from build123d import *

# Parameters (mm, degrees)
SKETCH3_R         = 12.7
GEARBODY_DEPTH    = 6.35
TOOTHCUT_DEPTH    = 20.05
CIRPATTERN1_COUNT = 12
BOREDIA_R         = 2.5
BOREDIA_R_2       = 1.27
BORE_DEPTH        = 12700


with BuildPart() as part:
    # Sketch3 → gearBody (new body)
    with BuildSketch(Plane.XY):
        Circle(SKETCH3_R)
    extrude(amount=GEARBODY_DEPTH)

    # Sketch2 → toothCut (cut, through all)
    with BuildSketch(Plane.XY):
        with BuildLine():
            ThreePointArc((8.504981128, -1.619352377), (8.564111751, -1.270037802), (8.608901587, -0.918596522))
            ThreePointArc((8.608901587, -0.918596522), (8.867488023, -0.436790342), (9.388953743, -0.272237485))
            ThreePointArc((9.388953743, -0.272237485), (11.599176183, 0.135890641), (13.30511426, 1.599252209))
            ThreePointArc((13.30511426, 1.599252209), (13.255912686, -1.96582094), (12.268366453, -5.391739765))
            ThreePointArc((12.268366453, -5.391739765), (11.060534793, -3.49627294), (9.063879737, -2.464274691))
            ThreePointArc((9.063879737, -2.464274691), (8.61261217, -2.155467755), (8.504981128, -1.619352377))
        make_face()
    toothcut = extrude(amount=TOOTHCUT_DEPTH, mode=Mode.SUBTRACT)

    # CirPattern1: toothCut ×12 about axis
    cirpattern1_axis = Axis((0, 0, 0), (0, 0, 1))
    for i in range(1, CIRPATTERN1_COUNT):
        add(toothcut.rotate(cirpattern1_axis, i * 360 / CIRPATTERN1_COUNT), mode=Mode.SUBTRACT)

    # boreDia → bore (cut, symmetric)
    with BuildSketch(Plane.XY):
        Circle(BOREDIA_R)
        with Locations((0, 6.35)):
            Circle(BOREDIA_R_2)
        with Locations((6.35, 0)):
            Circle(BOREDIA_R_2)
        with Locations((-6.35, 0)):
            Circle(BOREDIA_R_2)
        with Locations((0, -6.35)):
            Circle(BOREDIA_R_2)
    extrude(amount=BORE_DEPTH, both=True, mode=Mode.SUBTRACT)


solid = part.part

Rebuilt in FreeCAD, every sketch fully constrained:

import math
import FreeCAD as App
import Part
import Sketcher
from FreeCAD import Vector
Q = App.Units.Quantity

doc = App.newDocument("Part")
params = doc.addObject("Spreadsheet::Sheet", "Params")
for row, (alias, value) in enumerate([
    ("sketch1_diameter", "1 in"),
    ("pad1_length", "0.25 in"),
    ("sketch3_diameter", "0.1 in"),
    ("pocket2_length", "1000 in"),
], start=1):
    params.set(f"A{row}", alias)
    params.set(f"B{row}", "=" + value)
    params.setAlias(f"B{row}", alias)

body = doc.addObject("PartDesign::Body", "Body")

# Sketch on XY plane
sketch1 = doc.addObject("Sketcher::SketchObject", "Sketch")
body.addObject(sketch1)
sketch1.AttachmentSupport = (doc.XY_Plane, [""])
sketch1.MapMode = "FlatFace"
sketch1.addGeometry(Part.Circle(Vector(0, 0, 0), Vector(0, 0, 1), 13), False)
sketch1.addConstraint([
    Sketcher.Constraint("Coincident", 0, 3, -1, 1),
    Sketcher.Constraint("Diameter", 0, Q("1 in")),
])
sketch1.setExpression("Constraints[1]", "Params.sketch1_diameter")
pad1 = doc.addObject("PartDesign::Pad", "Pad")
body.addObject(pad1)
pad1.Profile = sketch1
pad1.setExpression("Length", "Params.pad1_length")

# Sketch on XY plane
sketch2 = doc.addObject("Sketcher::SketchObject", "Sketch001")
body.addObject(sketch2)
sketch2.AttachmentSupport = (doc.XY_Plane, [""])
sketch2.MapMode = "FlatFace"
sketch2.addGeometry([
    Part.ArcOfCircle(Part.Circle(Vector(0, 0, 0), Vector(0, 0, 1), 8.7), math.radians(-10.78), math.radians(-6.09)),  # 0
    Part.ArcOfCircle(Part.Circle(Vector(9.2, -1.8, 0), Vector(0, 0, 1), 0.7), math.radians(169), math.radians(258)),  # 1
    Part.ArcOfCircle(Part.Circle(Vector(8.1, -6.7, 0), Vector(0, 0, 1), 4.3), math.radians(17), math.radians(78)),  # 2
    Part.ArcOfCircle(Part.Circle(Vector(0, 0, 0), Vector(0, 0, 1), 13.4), math.radians(-24), math.radians(7)),  # 3
    Part.ArcOfCircle(Part.Circle(Vector(9.7, 4, 0), Vector(0, 0, 1), 4.3), math.radians(-95), math.radians(-34)),  # 4
    Part.ArcOfCircle(Part.Circle(Vector(9.3, -1, 0), Vector(0, 0, 1), 0.7), math.radians(85), math.radians(174)),  # 5
], False)
sketch2.addConstraint([
    Sketcher.Constraint("Tangent", 0, 1, 1, 1),
    Sketcher.Constraint("Tangent", 1, 2, 2, 2),
    Sketcher.Constraint("Coincident", 2, 1, 3, 1),
    Sketcher.Constraint("Coincident", 3, 2, 4, 2),
    Sketcher.Constraint("Tangent", 4, 1, 5, 1),
    Sketcher.Constraint("Tangent", 5, 2, 0, 2),
    Sketcher.Constraint("Coincident", 0, 3, -1, 1),
    Sketcher.Constraint("Coincident", 3, 3, -1, 1),
    Sketcher.Constraint("Equal", 2, 4),
    Sketcher.Constraint("Equal", 1, 5),
    Sketcher.Constraint("Radius", 0, 8.657772),
    Sketcher.Constraint("Radius", 1, 0.725714),
    Sketcher.Constraint("Radius", 2, 4.319355),
    Sketcher.Constraint("Radius", 3, 13.400883),
    Sketcher.Constraint("DistanceX", -1, 1, 5, 2, 8.608902),
    Sketcher.Constraint("DistanceX", 0, 1, 1, 2, 0.558899),
    Sketcher.Constraint("DistanceX", -1, 1, 1, 3, 9.217888),
    Sketcher.Constraint("DistanceX", 1, 3, 4, 3, 0.518858),
])
pocket1 = doc.addObject("PartDesign::Pocket", "Pocket")
body.addObject(pocket1)
pocket1.Profile = sketch2
pocket1.Type = "ThroughAll"
pocket1.Reversed = True
doc.recompute()

polarpattern = doc.addObject("PartDesign::PolarPattern", "PolarPattern")
body.addObject(polarpattern)
polarpattern.Originals = [pocket1]
polarpattern.Axis = (doc.Z_Axis, [""])
polarpattern.Angle = 360
polarpattern.Occurrences = 12
body.Tip = polarpattern

# Sketch on XY plane
sketch3 = doc.addObject("Sketcher::SketchObject", "Sketch002")
body.addObject(sketch3)
sketch3.AttachmentSupport = (doc.XY_Plane, [""])
sketch3.MapMode = "FlatFace"
sketch3.addGeometry([
    Part.Circle(Vector(0, 0, 0), Vector(0, 0, 1), 2.5),  # 0
    Part.Circle(Vector(0, 6.3, 0), Vector(0, 0, 1), 1.3),  # 1
    Part.Circle(Vector(6.3, 0, 0), Vector(0, 0, 1), 1.3),  # 2
    Part.Circle(Vector(-6.3, 0, 0), Vector(0, 0, 1), 1.3),  # 3
    Part.Circle(Vector(0, -6.3, 0), Vector(0, 0, 1), 1.3),  # 4
], False)
sketch3.addConstraint([
    Sketcher.Constraint("Coincident", 0, 3, -1, 1),
    Sketcher.Constraint("Equal", 1, 2),
    Sketcher.Constraint("Equal", 2, 3),
    Sketcher.Constraint("Equal", 3, 4),
    Sketcher.Constraint("Symmetric", 2, 3, 3, 3, -1, 1),
    Sketcher.Constraint("Symmetric", 1, 3, 4, 3, -1, 1),
    Sketcher.Constraint("PointOnObject", 1, 3, -2),
    Sketcher.Constraint("PointOnObject", 2, 3, -1),
    Sketcher.Constraint("Diameter", 1, Q("0.1 in")),
    Sketcher.Constraint("DistanceX", 3, 3, 2, 3, Q("0.5 in")),
    Sketcher.Constraint("DistanceY", 4, 3, 1, 3, Q("0.5 in")),
    Sketcher.Constraint("Diameter", 0, 5.0),
])
sketch3.setExpression("Constraints[8]", "Params.sketch3_diameter")
pocket2 = doc.addObject("PartDesign::Pocket", "Pocket001")
body.addObject(pocket2)
pocket2.Profile = sketch3
pocket2.setExpression("Length", "Params.pocket2_length")
pocket2.Midplane = True

doc.recompute()
